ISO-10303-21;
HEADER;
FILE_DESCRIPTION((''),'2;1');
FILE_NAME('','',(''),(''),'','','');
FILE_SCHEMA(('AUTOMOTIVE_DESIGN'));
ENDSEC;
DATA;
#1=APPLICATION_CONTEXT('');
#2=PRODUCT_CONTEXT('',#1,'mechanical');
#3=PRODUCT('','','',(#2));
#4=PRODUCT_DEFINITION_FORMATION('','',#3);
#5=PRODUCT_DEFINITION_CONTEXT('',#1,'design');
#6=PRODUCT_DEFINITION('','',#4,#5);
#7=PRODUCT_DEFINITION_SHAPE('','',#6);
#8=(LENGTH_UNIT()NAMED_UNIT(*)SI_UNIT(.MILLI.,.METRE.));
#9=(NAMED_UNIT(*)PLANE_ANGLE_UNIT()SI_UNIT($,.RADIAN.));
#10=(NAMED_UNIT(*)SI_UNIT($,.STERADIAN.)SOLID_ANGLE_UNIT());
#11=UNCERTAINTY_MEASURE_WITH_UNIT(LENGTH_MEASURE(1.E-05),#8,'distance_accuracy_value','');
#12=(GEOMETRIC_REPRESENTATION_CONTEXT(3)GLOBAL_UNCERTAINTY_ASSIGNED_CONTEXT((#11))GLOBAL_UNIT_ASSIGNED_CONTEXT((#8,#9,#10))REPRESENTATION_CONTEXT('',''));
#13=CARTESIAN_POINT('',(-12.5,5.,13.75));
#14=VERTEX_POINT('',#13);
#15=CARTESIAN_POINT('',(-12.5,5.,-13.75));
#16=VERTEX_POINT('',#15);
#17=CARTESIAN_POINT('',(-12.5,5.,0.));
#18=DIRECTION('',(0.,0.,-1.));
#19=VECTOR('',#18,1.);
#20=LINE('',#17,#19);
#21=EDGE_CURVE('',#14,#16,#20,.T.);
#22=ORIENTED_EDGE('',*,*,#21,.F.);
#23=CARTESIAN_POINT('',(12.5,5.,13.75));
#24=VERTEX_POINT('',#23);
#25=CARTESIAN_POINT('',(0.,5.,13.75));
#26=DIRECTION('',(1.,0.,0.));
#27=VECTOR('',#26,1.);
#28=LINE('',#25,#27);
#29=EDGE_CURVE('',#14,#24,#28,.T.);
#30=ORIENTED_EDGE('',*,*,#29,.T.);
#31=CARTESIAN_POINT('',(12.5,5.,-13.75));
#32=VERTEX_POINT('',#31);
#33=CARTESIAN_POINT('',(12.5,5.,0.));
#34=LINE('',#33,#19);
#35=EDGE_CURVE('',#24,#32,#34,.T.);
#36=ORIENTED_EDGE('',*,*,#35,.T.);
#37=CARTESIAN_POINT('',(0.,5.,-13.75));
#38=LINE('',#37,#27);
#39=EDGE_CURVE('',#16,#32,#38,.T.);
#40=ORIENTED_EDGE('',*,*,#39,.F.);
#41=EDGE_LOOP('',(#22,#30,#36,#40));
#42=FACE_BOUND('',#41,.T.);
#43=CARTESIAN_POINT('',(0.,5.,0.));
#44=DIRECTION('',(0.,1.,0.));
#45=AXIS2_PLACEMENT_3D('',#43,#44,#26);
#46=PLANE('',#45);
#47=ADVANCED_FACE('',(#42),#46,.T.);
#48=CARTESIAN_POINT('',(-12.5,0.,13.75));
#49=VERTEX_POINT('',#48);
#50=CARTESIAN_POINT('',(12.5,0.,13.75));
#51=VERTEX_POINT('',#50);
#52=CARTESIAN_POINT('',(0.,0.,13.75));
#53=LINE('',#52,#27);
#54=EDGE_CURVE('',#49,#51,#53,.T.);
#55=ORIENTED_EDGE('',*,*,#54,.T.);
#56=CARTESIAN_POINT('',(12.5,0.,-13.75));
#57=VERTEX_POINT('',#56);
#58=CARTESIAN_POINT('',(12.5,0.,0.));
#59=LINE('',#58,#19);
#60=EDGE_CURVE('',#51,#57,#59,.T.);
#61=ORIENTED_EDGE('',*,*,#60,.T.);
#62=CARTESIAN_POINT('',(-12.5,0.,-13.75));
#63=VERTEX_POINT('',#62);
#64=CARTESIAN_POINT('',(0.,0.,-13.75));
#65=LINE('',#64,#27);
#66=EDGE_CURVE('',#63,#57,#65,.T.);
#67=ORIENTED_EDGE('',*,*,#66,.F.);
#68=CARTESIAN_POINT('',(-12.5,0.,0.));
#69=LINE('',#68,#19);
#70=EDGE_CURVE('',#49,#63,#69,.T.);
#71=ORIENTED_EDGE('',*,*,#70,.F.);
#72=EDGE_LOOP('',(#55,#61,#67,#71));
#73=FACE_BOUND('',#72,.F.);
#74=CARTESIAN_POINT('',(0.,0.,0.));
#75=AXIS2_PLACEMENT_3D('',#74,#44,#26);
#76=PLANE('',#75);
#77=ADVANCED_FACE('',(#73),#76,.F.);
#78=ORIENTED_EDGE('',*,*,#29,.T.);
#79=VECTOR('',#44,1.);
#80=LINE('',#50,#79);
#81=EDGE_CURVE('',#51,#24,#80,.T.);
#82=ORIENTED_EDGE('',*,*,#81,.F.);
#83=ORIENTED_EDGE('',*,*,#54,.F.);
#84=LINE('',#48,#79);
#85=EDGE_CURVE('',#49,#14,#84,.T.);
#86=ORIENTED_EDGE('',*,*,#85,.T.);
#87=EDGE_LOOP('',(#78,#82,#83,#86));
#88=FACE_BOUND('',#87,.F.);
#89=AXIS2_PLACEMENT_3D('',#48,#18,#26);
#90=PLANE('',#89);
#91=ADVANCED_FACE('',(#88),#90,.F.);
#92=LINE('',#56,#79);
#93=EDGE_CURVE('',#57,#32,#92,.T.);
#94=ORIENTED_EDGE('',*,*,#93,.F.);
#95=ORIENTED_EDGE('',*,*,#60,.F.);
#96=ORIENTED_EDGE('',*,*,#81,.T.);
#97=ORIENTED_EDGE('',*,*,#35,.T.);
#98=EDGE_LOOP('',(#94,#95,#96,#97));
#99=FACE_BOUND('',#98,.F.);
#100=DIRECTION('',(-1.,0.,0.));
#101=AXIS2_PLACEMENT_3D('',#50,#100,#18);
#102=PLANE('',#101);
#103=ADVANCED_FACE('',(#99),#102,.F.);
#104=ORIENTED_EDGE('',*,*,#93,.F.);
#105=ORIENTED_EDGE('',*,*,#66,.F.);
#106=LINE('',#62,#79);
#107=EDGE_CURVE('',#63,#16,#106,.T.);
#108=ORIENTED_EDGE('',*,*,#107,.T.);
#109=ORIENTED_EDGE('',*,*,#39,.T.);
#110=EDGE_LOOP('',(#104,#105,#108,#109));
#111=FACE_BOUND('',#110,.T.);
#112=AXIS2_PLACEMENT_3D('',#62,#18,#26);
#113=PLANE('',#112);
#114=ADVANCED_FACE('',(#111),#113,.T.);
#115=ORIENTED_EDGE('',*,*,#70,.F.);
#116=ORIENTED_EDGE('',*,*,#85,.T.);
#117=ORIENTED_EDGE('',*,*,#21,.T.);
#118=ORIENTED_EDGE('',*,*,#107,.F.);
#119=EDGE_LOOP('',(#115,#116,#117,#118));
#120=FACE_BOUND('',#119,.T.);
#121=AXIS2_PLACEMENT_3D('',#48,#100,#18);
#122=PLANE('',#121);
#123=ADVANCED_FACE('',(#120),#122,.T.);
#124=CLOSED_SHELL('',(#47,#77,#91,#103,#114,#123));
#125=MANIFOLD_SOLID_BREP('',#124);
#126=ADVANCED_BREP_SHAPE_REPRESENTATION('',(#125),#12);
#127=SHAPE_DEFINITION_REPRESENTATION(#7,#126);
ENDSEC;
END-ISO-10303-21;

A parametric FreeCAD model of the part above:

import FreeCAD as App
import Part
import Sketcher
Q = App.Units.Quantity


def add_polygon(sketch, points):
    """Adds a closed chain of lines whose ends are joined by coincident constraints."""
    first, n = sketch.GeometryCount, len(points)
    for a, b in zip(points, points[1:] + points[:1]):
        sketch.addGeometry(Part.LineSegment(App.Vector(*a, 0), App.Vector(*b, 0)), False)
    for i in range(n):
        sketch.addConstraint(Sketcher.Constraint("Coincident", first + i, 2, first + (i + 1) % n, 1))

doc = App.newDocument("Part")
body = doc.addObject("PartDesign::Body", "Body")

# Sketch on XZ plane
sketch1 = doc.addObject("Sketcher::SketchObject", "Sketch")
body.addObject(sketch1)
sketch1.AttachmentSupport = (doc.XZ_Plane, [""])
sketch1.MapMode = "FlatFace"
add_polygon(sketch1, [(-12.5, -13.75), (-12.5, 13.75), (12.5, 13.75), (12.5, -13.75)])  # lines 0-3
sketch1.addConstraint(Sketcher.Constraint("Vertical", 0))
sketch1.addConstraint(Sketcher.Constraint("Horizontal", 1))
sketch1.addConstraint(Sketcher.Constraint("Vertical", 2))
sketch1.addConstraint(Sketcher.Constraint("Horizontal", 3))
sketch1.addConstraint(Sketcher.Constraint("Symmetric", 0, 2, 2, 2, -1, 1))
sketch1.addConstraint(Sketcher.Constraint("DistanceX", 1, 1, 1, 2, Q("25 mm")))
sketch1.addConstraint(Sketcher.Constraint("DistanceY", 0, 1, 0, 2, Q("27.5 mm")))
pad1 = doc.addObject("PartDesign::Pad", "Pad")
body.addObject(pad1)
pad1.Profile = sketch1
pad1.Length = 5
pad1.Reversed = True

doc.recompute()
